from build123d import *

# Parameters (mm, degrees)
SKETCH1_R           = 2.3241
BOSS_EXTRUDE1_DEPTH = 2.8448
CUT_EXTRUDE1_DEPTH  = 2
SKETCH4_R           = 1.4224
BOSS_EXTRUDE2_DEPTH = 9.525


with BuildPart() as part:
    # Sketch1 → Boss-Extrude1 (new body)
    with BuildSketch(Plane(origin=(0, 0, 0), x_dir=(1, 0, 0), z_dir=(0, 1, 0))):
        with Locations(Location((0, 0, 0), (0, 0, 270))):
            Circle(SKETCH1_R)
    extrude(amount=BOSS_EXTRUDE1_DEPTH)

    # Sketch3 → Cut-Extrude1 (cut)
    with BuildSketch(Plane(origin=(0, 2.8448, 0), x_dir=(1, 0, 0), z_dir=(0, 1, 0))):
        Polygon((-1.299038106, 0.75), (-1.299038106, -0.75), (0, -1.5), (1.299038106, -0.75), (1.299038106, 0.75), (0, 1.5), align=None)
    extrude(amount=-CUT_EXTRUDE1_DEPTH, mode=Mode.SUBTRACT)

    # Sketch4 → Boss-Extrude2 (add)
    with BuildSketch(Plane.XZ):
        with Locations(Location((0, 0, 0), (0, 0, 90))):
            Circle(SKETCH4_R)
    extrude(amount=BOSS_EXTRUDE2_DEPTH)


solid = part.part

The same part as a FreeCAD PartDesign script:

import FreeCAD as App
import Part
import Sketcher

V = App.Vector
Q = App.Units.Quantity

doc = App.newDocument("Part")
body = doc.addObject("PartDesign::Body", "Body")

sketch1 = body.newObject("Sketcher::SketchObject", "Sketch")
sketch1.AttachmentSupport = (doc.getObject("XZ_Plane"), [""])
sketch1.MapMode = "FlatFace"
sketch1.addGeometry(Part.Circle(V(0, 0, 0), V(0, 0, 1), 2.3), False)
sketch1.addConstraint([
    Sketcher.Constraint("Coincident", 0, 3, -1, 1),
    Sketcher.Constraint("Diameter", 0, Q("0.183 in")),
])
pad1 = body.newObject("PartDesign::Pad", "Pad")
pad1.Profile = sketch1
pad1.Length = Q("0.112 in")
pad1.Reversed = True

sketch2 = body.newObject("Sketcher::SketchObject", "Sketch001")
sketch2.AttachmentSupport = (doc.getObject("XZ_Plane"), [""])
sketch2.MapMode = "FlatFace"
sketch2.AttachmentOffset = App.Placement(V(0, 0, -0.112 * 25.4), App.Rotation())
sketch2.addGeometry([
    Part.LineSegment(V(-1.3, -0.8, 0), V(-1.3, 0.8, 0)),
    Part.LineSegment(V(-1.3, 0.8, 0), V(0, 1.5, 0)),
    Part.LineSegment(V(0, 1.5, 0), V(1.3, 0.8, 0)),
    Part.LineSegment(V(1.3, 0.8, 0), V(1.3, -0.8, 0)),
    Part.LineSegment(V(1.3, -0.8, 0), V(0, -1.5, 0)),
    Part.LineSegment(V(0, -1.5, 0), V(-1.3, -0.8, 0)),
], False)
sketch2.addConstraint([
    Sketcher.Constraint("Coincident", 0, 2, 1, 1),
    Sketcher.Constraint("Coincident", 1, 2, 2, 1),
    Sketcher.Constraint("Coincident", 2, 2, 3, 1),
    Sketcher.Constraint("Coincident", 3, 2, 4, 1),
    Sketcher.Constraint("Coincident", 4, 2, 5, 1),
    Sketcher.Constraint("Coincident", 5, 2, 0, 1),
    Sketcher.Constraint("Vertical", 0),
    Sketcher.Constraint("Vertical", 3),
    Sketcher.Constraint("Symmetric", 0, 2, 3, 2, -1, 1),
    Sketcher.Constraint("Symmetric", 1, 2, 4, 2, -1, 1),
    Sketcher.Constraint("PointOnObject", 1, 2, -2),
    Sketcher.Constraint("Parallel", 2, 5),
    Sketcher.Constraint("Horizontal", 0, 2, 2, 2),
    Sketcher.Constraint("Angle", 1, Q("30 deg")),
    Sketcher.Constraint("DistanceY", 0, 1, 0, 2, Q("1.5 mm")),
    Sketcher.Constraint("Distance", 1, Q("1.5 mm")),
])
pocket1 = body.newObject("PartDesign::Pocket", "Pocket")
pocket1.Profile = sketch2
pocket1.Length = 2
pocket1.Reversed = True

sketch3 = body.newObject("Sketcher::SketchObject", "Sketch002")
sketch3.AttachmentSupport = (doc.getObject("XZ_Plane"), [""])
sketch3.MapMode = "FlatFace"
sketch3.addGeometry(Part.Circle(V(0, 0, 0), V(0, 0, 1), 1.4), False)
sketch3.addConstraint([
    Sketcher.Constraint("Coincident", 0, 3, -1, 1),
    Sketcher.Constraint("Diameter", 0, Q("0.112 in")),
])
pad2 = body.newObject("PartDesign::Pad", "Pad001")
pad2.Profile = sketch3
pad2.Length = Q("0.375 in")

doc.recompute()
